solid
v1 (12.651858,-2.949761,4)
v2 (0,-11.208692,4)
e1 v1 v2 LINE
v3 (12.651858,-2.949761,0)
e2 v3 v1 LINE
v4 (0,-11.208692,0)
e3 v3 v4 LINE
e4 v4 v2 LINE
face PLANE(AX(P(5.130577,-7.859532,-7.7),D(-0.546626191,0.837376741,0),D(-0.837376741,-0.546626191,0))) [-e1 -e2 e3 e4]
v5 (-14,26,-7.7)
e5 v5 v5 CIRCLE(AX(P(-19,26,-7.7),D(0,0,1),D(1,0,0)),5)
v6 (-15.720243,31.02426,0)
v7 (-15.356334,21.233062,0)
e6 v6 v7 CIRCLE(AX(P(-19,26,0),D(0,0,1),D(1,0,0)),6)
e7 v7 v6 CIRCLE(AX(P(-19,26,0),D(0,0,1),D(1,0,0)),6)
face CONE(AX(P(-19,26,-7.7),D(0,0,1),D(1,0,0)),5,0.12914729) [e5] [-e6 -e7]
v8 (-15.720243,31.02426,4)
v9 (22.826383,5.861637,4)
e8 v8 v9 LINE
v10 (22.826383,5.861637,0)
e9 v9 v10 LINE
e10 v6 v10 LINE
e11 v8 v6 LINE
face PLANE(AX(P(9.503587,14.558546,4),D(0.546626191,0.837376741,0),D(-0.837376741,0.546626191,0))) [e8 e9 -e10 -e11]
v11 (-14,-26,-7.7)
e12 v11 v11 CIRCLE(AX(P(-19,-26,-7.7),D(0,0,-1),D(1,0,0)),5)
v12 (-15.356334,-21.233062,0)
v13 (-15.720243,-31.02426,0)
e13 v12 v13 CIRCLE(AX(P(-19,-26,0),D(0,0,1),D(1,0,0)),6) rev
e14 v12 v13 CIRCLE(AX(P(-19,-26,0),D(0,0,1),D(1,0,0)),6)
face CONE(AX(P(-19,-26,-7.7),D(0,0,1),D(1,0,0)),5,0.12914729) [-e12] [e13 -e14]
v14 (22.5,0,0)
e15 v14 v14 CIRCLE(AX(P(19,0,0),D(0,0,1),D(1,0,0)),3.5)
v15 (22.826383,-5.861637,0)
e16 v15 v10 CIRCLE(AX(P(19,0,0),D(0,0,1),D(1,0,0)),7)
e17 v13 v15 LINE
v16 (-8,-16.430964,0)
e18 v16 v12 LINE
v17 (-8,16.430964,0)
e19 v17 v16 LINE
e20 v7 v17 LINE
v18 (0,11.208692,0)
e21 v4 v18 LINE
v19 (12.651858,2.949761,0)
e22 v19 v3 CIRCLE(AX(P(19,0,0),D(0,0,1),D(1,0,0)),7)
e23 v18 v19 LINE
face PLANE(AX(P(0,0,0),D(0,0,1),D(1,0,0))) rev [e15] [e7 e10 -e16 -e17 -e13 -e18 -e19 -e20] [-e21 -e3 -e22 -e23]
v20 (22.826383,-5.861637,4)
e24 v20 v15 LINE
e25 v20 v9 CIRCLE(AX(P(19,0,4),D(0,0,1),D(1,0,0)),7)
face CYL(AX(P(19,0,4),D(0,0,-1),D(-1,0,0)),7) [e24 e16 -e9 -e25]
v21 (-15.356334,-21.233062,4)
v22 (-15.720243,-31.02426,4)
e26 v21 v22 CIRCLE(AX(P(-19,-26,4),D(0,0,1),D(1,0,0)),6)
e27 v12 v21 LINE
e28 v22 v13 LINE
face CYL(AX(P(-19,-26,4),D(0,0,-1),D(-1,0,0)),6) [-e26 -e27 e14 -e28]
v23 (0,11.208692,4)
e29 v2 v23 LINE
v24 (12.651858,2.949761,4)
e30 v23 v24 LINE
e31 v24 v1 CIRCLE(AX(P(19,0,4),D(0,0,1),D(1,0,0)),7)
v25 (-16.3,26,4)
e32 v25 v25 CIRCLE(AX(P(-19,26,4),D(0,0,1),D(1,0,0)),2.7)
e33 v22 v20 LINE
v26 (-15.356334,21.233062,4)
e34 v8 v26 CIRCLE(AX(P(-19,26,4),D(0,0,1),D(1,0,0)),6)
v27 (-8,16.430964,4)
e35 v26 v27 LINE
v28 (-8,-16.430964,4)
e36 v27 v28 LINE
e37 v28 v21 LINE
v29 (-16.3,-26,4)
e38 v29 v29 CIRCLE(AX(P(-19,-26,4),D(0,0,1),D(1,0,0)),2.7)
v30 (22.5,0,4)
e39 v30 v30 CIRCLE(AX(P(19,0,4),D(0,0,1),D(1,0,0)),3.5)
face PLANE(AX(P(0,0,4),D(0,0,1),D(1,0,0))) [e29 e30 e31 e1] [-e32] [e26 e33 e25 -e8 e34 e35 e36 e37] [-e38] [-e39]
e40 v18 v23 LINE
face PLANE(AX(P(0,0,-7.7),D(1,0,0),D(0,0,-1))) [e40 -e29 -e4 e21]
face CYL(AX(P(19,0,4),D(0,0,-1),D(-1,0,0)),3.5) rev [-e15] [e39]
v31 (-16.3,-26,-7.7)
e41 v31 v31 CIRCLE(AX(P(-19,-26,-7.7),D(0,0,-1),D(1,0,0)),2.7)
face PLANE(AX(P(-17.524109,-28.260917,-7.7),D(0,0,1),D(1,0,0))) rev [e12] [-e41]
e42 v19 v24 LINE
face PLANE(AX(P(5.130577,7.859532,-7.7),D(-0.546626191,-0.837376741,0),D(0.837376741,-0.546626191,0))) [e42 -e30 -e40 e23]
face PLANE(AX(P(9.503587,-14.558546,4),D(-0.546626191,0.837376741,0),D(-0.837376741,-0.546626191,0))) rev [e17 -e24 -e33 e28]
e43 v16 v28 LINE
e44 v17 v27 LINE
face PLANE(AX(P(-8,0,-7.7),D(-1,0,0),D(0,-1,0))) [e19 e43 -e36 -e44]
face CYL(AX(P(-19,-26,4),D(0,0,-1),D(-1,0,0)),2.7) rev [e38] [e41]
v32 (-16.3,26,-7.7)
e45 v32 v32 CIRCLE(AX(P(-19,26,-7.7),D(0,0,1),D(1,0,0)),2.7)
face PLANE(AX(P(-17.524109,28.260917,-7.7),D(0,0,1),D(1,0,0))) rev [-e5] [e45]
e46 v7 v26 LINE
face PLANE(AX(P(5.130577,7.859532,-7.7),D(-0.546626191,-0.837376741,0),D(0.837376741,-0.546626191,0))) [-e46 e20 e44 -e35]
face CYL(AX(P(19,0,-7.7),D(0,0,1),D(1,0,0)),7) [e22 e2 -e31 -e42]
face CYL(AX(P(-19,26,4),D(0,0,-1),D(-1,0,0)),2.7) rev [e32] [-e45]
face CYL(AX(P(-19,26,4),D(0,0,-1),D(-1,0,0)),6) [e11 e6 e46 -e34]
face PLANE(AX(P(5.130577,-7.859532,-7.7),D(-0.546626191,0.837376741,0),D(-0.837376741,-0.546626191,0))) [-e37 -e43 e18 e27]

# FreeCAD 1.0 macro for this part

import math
import FreeCAD as App
import Part
import Sketcher
Q = App.Units.Quantity


def add_polygon(sketch, points):
    """Adds a closed chain of lines whose ends are joined by coincident constraints."""
    first, n = sketch.GeometryCount, len(points)
    for a, b in zip(points, points[1:] + points[:1]):
        sketch.addGeometry(Part.LineSegment(App.Vector(*a, 0), App.Vector(*b, 0)), False)
    for i in range(n):
        sketch.addConstraint(Sketcher.Constraint("Coincident", first + i, 2, first + (i + 1) % n, 1))

doc = App.newDocument("Part")
body = doc.addObject("PartDesign::Body", "Body")

sketch1 = body.newObject("Sketcher::SketchObject", "Sketch")
sketch1.AttachmentSupport = (doc.getObject("XY_Plane"), [""])
sketch1.MapMode = "FlatFace"
sketch1.addGeometry(Part.LineSegment(App.Vector(-22.8, 30.6, 0), App.Vector(-45, 12.5, 0)), False)
sketch1.addGeometry(Part.LineSegment(App.Vector(-45, 12.5, 0), App.Vector(-45, -12.5, 0)), False)
sketch1.addGeometry(Part.LineSegment(App.Vector(-45, -12.5, 0), App.Vector(-22.8, -30.6, 0)), False)
sketch1.addGeometry(Part.ArcOfCircle(Part.Circle(App.Vector(-19, -26, 0), App.Vector(0, 0, 1), 6), math.radians(-129), math.radians(-57)), False)
sketch1.addGeometry(Part.LineSegment(App.Vector(-15.7, -31, 0), App.Vector(22.8, -5.9, 0)), False)
sketch1.addGeometry(Part.ArcOfCircle(Part.Circle(App.Vector(19, 0, 0), App.Vector(0, 0, 1), 7), math.radians(-57), math.radians(57)), False)
sketch1.addGeometry(Part.LineSegment(App.Vector(22.8, 5.9, 0), App.Vector(-15.7, 31, 0)), False)
sketch1.addGeometry(Part.ArcOfCircle(Part.Circle(App.Vector(-19, 26, 0), App.Vector(0, 0, 1), 6), math.radians(57), math.radians(129)), False)
sketch1.addGeometry(Part.Circle(App.Vector(-19, -26, 0), App.Vector(0, 0, 1), 2.7), False)
sketch1.addGeometry(Part.Circle(App.Vector(-35, 0, 0), App.Vector(0, 0, 1), 2.2), False)
sketch1.addGeometry(Part.Circle(App.Vector(-19, 0, 0), App.Vector(0, 0, 1), 2.2), False)
sketch1.addGeometry(Part.Circle(App.Vector(19, 0, 0), App.Vector(0, 0, 1), 3.5), False)
sketch1.addGeometry(Part.Circle(App.Vector(-19, 26, 0), App.Vector(0, 0, 1), 2.7), False)
sketch1.addConstraint(Sketcher.Constraint("Coincident", 0, 2, 1, 1))
sketch1.addConstraint(Sketcher.Constraint("Coincident", 1, 2, 2, 1))
sketch1.addConstraint(Sketcher.Constraint("Tangent", 2, 2, 3, 1))
sketch1.addConstraint(Sketcher.Constraint("Tangent", 3, 2, 4, 1))
sketch1.addConstraint(Sketcher.Constraint("Tangent", 4, 2, 5, 1))
sketch1.addConstraint(Sketcher.Constraint("Tangent", 5, 2, 6, 1))
sketch1.addConstraint(Sketcher.Constraint("Tangent", 6, 2, 7, 1))
sketch1.addConstraint(Sketcher.Constraint("Tangent", 7, 2, 0, 1))
sketch1.addConstraint(Sketcher.Constraint("Vertical", 1))
sketch1.addConstraint(Sketcher.Constraint("Coincident", 8, 3, 3, 3))
sketch1.addConstraint(Sketcher.Constraint("Coincident", 11, 3, 5, 3))
sketch1.addConstraint(Sketcher.Constraint("Coincident", 12, 3, 7, 3))
sketch1.addConstraint(Sketcher.Constraint("Equal", 3, 7))
sketch1.addConstraint(Sketcher.Constraint("Equal", 9, 10))
sketch1.addConstraint(Sketcher.Constraint("Equal", 8, 12))
sketch1.addConstraint(Sketcher.Constraint("Symmetric", 5, 3, 10, 3, -1, 1))
sketch1.addConstraint(Sketcher.Constraint("Symmetric", 3, 3, 7, 3, -1))
sketch1.addConstraint(Sketcher.Constraint("PointOnObject", 5, 3, -1))
sketch1.addConstraint(Sketcher.Constraint("PointOnObject", 9, 3, -1))
sketch1.addConstraint(Sketcher.Constraint("Vertical", 8, 3, 10, 3))
sketch1.addConstraint(Sketcher.Constraint("Vertical", 2, 2, 7, 2))
sketch1.addConstraint(Sketcher.Constraint("Diameter", 11, Q("7 mm")))
sketch1.addConstraint(Sketcher.Constraint("Radius", 3, Q("6 mm")))
sketch1.addConstraint(Sketcher.Constraint("Radius", 5, Q("7 mm")))
sketch1.addConstraint(Sketcher.Constraint("Diameter", 8, Q("5.4 mm")))
sketch1.addConstraint(Sketcher.Constraint("Diameter", 9, Q("4.4 mm")))
sketch1.addConstraint(Sketcher.Constraint("DistanceY", 1, 2, 1, 1, Q("25 mm")))
sketch1.addConstraint(Sketcher.Constraint("DistanceX", 3, 3, -1, 1, Q("19 mm")))
sketch1.addConstraint(Sketcher.Constraint("DistanceY", 3, 3, -1, 1, Q("26 mm")))
sketch1.addConstraint(Sketcher.Constraint("DistanceX", 9, 3, -1, 1, Q("35 mm")))
sketch1.addConstraint(Sketcher.Constraint("DistanceX", 0, 2, -1, 1, Q("45 mm")))
pad1 = body.newObject("PartDesign::Pad", "Pad")
pad1.Profile = sketch1
pad1.Length = 4

sketch2 = body.newObject("Sketcher::SketchObject", "Sketch001")
sketch2.Placement = App.Placement(App.Vector(-25.22383, 16.465714, 0), App.Rotation(App.Vector(0, 0, -1), App.Vector(0.546626191, 0.837376741, 0), App.Vector(0.837376741, -0.546626191, 0), "ZXY"))
add_polygon(sketch2, [(7.7, 16.4), (0, 17.4), (0, 14.1), (7.7, 14.1)])
sketch2.addGeometry(Part.LineSegment(App.Vector(0, 11.4, 0), App.Vector(7.7, 11.4, 0)), True)
sketch2.addConstraint(Sketcher.Constraint("Vertical", 1))
sketch2.addConstraint(Sketcher.Constraint("Horizontal", 2))
sketch2.addConstraint(Sketcher.Constraint("Vertical", 3))
sketch2.addConstraint(Sketcher.Constraint("Horizontal", 4))
sketch2.addConstraint(Sketcher.Constraint("PointOnObject", 0, 2, -2))
sketch2.addConstraint(Sketcher.Constraint("PointOnObject", 4, 1, -2))
sketch2.addConstraint(Sketcher.Constraint("Vertical", 3, 2, 4, 2))
sketch2.addConstraint(Sketcher.Constraint("DistanceX", 2, 1, 2, 2, Q("7.7 mm")))
sketch2.addConstraint(Sketcher.Constraint("DistanceY", 1, 2, 1, 1, Q("3.3 mm")))
sketch2.addConstraint(Sketcher.Constraint("DistanceY", 3, 1, 3, 2, Q("2.3 mm")))
sketch2.addConstraint(Sketcher.Constraint("DistanceY", 4, 1, 0, 2, Q("6 mm")))
sketch2.addConstraint(Sketcher.Constraint("DistanceY", -1, 1, 0, 2, Q("17.385898 mm")))
revolution = body.newObject("PartDesign::Revolution", "Revolution")
revolution.Profile = sketch2
revolution.ReferenceAxis = (sketch2, ["Axis0"])
revolution.Angle = 360
doc.recompute()

mirrored = body.newObject("PartDesign::Mirrored", "Mirrored")
mirrored.Originals = [revolution]
mirrored.MirrorPlane = (doc.getObject("XZ_Plane"), [""])
body.Tip = mirrored

sketch3 = body.newObject("Sketcher::SketchObject", "Sketch002")
sketch3.AttachmentSupport = (doc.getObject("XY_Plane"), [""])
sketch3.MapMode = "FlatFace"
sketch3.AttachmentOffset = App.Placement(App.Vector(0, 0, 4), App.Rotation())
sketch3.addGeometry(Part.LineSegment(App.Vector(-8, 16.4, 0), App.Vector(-15.4, 21.2, 0)), False)
sketch3.addGeometry(Part.ArcOfCircle(Part.Circle(App.Vector(-19, 26, 0), App.Vector(0, 0, 1), 6), math.radians(129), math.radians(307)), False)
sketch3.addGeometry(Part.LineSegment(App.Vector(-22.8, 30.6, 0), App.Vector(-45, 12.5, 0)), False)
sketch3.addGeometry(Part.LineSegment(App.Vector(-45, 12.5, 0), App.Vector(-45, -12.5, 0)), False)
sketch3.addGeometry(Part.LineSegment(App.Vector(-45, -12.5, 0), App.Vector(-22.8, -30.6, 0)), False)
sketch3.addGeometry(Part.ArcOfCircle(Part.Circle(App.Vector(-19, -26, 0), App.Vector(0, 0, 1), 6), math.radians(53), math.radians(231)), False)
sketch3.addGeometry(Part.LineSegment(App.Vector(-15.4, -21.2, 0), App.Vector(-8, -16.4, 0)), False)
sketch3.addGeometry(Part.LineSegment(App.Vector(-8, -16.4, 0), App.Vector(-8, 16.4, 0)), False)
sketch3.addGeometry(Part.Circle(App.Vector(-35, 0, 0), App.Vector(0, 0, 1), 2.2), False)
sketch3.addGeometry(Part.Circle(App.Vector(-19, 0, 0), App.Vector(0, 0, 1), 2.2), False)
sketch3.addGeometry(Part.LineSegment(App.Vector(12.7, 2.9, 0), App.Vector(0, 11.2, 0)), False)
sketch3.addGeometry(Part.LineSegment(App.Vector(0, 11.2, 0), App.Vector(0, -11.2, 0)), False)
sketch3.addGeometry(Part.LineSegment(App.Vector(0, -11.2, 0), App.Vector(12.7, -2.9, 0)), False)
sketch3.addGeometry(Part.ArcOfCircle(Part.Circle(App.Vector(19, 0, 0), App.Vector(0, 0, 1), 7), math.radians(155), math.radians(205)), False)
sketch3.addConstraint(Sketcher.Constraint("Coincident", 0, 2, 1, 2))
sketch3.addConstraint(Sketcher.Constraint("Tangent", 1, 1, 2, 1))
sketch3.addConstraint(Sketcher.Constraint("Coincident", 2, 2, 3, 1))
sketch3.addConstraint(Sketcher.Constraint("Coincident", 3, 2, 4, 1))
sketch3.addConstraint(Sketcher.Constraint("Tangent", 4, 2, 5, 2))
sketch3.addConstraint(Sketcher.Constraint("Coincident", 5, 1, 6, 1))
sketch3.addConstraint(Sketcher.Constraint("Coincident", 6, 2, 7, 1))
sketch3.addConstraint(Sketcher.Constraint("Coincident", 7, 2, 0, 1))
sketch3.addConstraint(Sketcher.Constraint("Coincident", 10, 2, 11, 1))
sketch3.addConstraint(Sketcher.Constraint("Coincident", 11, 2, 12, 1))
sketch3.addConstraint(Sketcher.Constraint("Coincident", 12, 2, 13, 2))
sketch3.addConstraint(Sketcher.Constraint("Coincident", 13, 1, 10, 1))
sketch3.addConstraint(Sketcher.Constraint("Vertical", 3))
sketch3.addConstraint(Sketcher.Constraint("Vertical", 7))
sketch3.addConstraint(Sketcher.Constraint("Vertical", 11))
sketch3.addConstraint(Sketcher.Constraint("Equal", 1, 5))
sketch3.addConstraint(Sketcher.Constraint("Equal", 8, 9))
sketch3.addConstraint(Sketcher.Constraint("Symmetric", 9, 3, 13, 3, -1, 1))
sketch3.addConstraint(Sketcher.Constraint("Symmetric", 10, 2, 11, 2, -1, 1))
sketch3.addConstraint(Sketcher.Constraint("Symmetric", 1, 3, 5, 3, -1))
sketch3.addConstraint(Sketcher.Constraint("Symmetric", 12, 2, 13, 1, -1))
sketch3.addConstraint(Sketcher.Constraint("PointOnObject", 8, 3, -1))
sketch3.addConstraint(Sketcher.Constraint("Parallel", 0, 10))
sketch3.addConstraint(Sketcher.Constraint("Parallel", 6, 12))
sketch3.addConstraint(Sketcher.Constraint("Vertical", 5, 3, 9, 3))
sketch3.addConstraint(Sketcher.Constraint("Vertical", 1, 1, 4, 2))
sketch3.addConstraint(Sketcher.Constraint("Vertical", 0, 2, 5, 1))
sketch3.addConstraint(Sketcher.Constraint("Radius", 1, Q("6 mm")))
sketch3.addConstraint(Sketcher.Constraint("Radius", 13, Q("7 mm")))
sketch3.addConstraint(Sketcher.Constraint("Diameter", 8, Q("4.4 mm")))
sketch3.addConstraint(Sketcher.Constraint("DistanceY", 3, 2, 3, 1, Q("25 mm")))
sketch3.addConstraint(Sketcher.Constraint("DistanceX", 1, 3, -1, 1, Q("19 mm")))
sketch3.addConstraint(Sketcher.Constraint("DistanceY", -1, 1, 1, 3, Q("26 mm")))
sketch3.addConstraint(Sketcher.Constraint("DistanceX", 8, 3, -1, 1, Q("35 mm")))
sketch3.addConstraint(Sketcher.Constraint("DistanceX", 2, 2, -1, 1, Q("45 mm")))
sketch3.addConstraint(Sketcher.Constraint("DistanceX", 6, 2, -1, 1, Q("8 mm")))
sketch3.addConstraint(Sketcher.Constraint("DistanceY", 7, 1, 7, 2, Q("32.861928 mm")))
sketch3.addConstraint(Sketcher.Constraint("Distance", 10, Q("15.108919 mm")))
sketch3.addConstraint(Sketcher.Constraint("DistanceY", 11, 2, 11, 1, Q("22.417383 mm")))
pocket1 = body.newObject("PartDesign::Pocket", "Pocket")
pocket1.Profile = sketch3
pocket1.Length = 57.443689

doc.recompute()
